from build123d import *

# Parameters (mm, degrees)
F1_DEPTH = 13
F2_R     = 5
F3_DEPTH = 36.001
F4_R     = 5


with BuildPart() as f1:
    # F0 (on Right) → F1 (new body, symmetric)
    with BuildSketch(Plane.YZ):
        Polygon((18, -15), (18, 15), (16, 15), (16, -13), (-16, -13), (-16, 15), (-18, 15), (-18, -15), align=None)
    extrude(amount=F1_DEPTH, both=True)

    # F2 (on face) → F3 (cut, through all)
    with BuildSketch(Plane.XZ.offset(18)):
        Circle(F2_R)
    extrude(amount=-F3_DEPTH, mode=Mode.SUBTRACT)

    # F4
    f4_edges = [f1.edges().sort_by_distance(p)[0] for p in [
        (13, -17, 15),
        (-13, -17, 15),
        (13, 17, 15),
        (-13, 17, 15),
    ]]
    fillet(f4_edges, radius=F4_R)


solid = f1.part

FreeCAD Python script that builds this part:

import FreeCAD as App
import Part
import Sketcher
from FreeCAD import Vector
Q = App.Units.Quantity


def edges_at(feature, points):
    """Names of the edges that pass closest to the given points."""
    edges = feature.Shape.Edges
    near = lambda p: min(range(len(edges)), key=lambda i: edges[i].distToShape(Part.Vertex(*p))[0])
    return sorted({f"Edge{near(p) + 1}" for p in points})


def add_polygon(sketch, points):
    """Adds a closed chain of lines whose ends are joined by coincident constraints."""
    first, n = sketch.GeometryCount, len(points)
    for a, b in zip(points, points[1:] + points[:1]):
        sketch.addGeometry(Part.LineSegment(App.Vector(*a, 0), App.Vector(*b, 0)), False)
    for i in range(n):
        sketch.addConstraint(Sketcher.Constraint("Coincident", first + i, 2, first + (i + 1) % n, 1))

doc = App.newDocument("Part")
body = doc.addObject("PartDesign::Body", "Body")

# Sketch on YZ plane
sketch1 = doc.addObject("Sketcher::SketchObject", "Sketch")
body.addObject(sketch1)
sketch1.AttachmentSupport = (doc.YZ_Plane, [""])
sketch1.MapMode = "FlatFace"
add_polygon(sketch1, [(18, -15), (18, 15), (16, 15), (16, -13), (-16, -13), (-16, 15), (-18, 15), (-18, -15)])  # lines 0-7
sketch1.addConstraint(Sketcher.Constraint("Vertical", 0))
sketch1.addConstraint(Sketcher.Constraint("Horizontal", 1))
sketch1.addConstraint(Sketcher.Constraint("Vertical", 2))
sketch1.addConstraint(Sketcher.Constraint("Horizontal", 3))
sketch1.addConstraint(Sketcher.Constraint("Vertical", 4))
sketch1.addConstraint(Sketcher.Constraint("Horizontal", 5))
sketch1.addConstraint(Sketcher.Constraint("Vertical", 6))
sketch1.addConstraint(Sketcher.Constraint("Horizontal", 7))
sketch1.addConstraint(Sketcher.Constraint("Symmetric", 0, 2, 6, 2, -1, 1))
sketch1.addConstraint(Sketcher.Constraint("Symmetric", 1, 2, 4, 2, -2))
sketch1.addConstraint(Sketcher.Constraint("DistanceX", 1, 2, 1, 1, Q("2 mm")))
sketch1.addConstraint(Sketcher.Constraint("DistanceX", 3, 2, 3, 1, Q("32 mm")))
sketch1.addConstraint(Sketcher.Constraint("DistanceY", 0, 1, 0, 2, Q("30 mm")))
sketch1.addConstraint(Sketcher.Constraint("DistanceY", 2, 2, 2, 1, Q("28 mm")))
pad1 = doc.addObject("PartDesign::Pad", "Pad")
body.addObject(pad1)
pad1.Profile = sketch1
pad1.Length = 26
pad1.Midplane = True

# Sketch on XZ plane
sketch2 = doc.addObject("Sketcher::SketchObject", "Sketch001")
body.addObject(sketch2)
sketch2.AttachmentSupport = (doc.XZ_Plane, [""])
sketch2.MapMode = "FlatFace"
sketch2.AttachmentOffset = App.Placement(Vector(0, 0, 18), App.Rotation())
sketch2.addGeometry(Part.Circle(Vector(0, 0, 0), Vector(0, 0, 1), 5), False)
sketch2.addConstraint(Sketcher.Constraint("Coincident", 0, 3, -1, 1))
sketch2.addConstraint(Sketcher.Constraint("Diameter", 0, Q("10 mm")))
pocket1 = doc.addObject("PartDesign::Pocket", "Pocket")
body.addObject(pocket1)
pocket1.Profile = sketch2
pocket1.Type = "ThroughAll"
doc.recompute()

fillet = doc.addObject("PartDesign::Fillet", "Fillet")
body.addObject(fillet)
fillet.Base = (pocket1, edges_at(pocket1, [
    (13, -17, 15),
    (-13, -17, 15),
    (13, 17, 15),
    (-13, 17, 15),
]))
fillet.Radius = 5

doc.recompute()
